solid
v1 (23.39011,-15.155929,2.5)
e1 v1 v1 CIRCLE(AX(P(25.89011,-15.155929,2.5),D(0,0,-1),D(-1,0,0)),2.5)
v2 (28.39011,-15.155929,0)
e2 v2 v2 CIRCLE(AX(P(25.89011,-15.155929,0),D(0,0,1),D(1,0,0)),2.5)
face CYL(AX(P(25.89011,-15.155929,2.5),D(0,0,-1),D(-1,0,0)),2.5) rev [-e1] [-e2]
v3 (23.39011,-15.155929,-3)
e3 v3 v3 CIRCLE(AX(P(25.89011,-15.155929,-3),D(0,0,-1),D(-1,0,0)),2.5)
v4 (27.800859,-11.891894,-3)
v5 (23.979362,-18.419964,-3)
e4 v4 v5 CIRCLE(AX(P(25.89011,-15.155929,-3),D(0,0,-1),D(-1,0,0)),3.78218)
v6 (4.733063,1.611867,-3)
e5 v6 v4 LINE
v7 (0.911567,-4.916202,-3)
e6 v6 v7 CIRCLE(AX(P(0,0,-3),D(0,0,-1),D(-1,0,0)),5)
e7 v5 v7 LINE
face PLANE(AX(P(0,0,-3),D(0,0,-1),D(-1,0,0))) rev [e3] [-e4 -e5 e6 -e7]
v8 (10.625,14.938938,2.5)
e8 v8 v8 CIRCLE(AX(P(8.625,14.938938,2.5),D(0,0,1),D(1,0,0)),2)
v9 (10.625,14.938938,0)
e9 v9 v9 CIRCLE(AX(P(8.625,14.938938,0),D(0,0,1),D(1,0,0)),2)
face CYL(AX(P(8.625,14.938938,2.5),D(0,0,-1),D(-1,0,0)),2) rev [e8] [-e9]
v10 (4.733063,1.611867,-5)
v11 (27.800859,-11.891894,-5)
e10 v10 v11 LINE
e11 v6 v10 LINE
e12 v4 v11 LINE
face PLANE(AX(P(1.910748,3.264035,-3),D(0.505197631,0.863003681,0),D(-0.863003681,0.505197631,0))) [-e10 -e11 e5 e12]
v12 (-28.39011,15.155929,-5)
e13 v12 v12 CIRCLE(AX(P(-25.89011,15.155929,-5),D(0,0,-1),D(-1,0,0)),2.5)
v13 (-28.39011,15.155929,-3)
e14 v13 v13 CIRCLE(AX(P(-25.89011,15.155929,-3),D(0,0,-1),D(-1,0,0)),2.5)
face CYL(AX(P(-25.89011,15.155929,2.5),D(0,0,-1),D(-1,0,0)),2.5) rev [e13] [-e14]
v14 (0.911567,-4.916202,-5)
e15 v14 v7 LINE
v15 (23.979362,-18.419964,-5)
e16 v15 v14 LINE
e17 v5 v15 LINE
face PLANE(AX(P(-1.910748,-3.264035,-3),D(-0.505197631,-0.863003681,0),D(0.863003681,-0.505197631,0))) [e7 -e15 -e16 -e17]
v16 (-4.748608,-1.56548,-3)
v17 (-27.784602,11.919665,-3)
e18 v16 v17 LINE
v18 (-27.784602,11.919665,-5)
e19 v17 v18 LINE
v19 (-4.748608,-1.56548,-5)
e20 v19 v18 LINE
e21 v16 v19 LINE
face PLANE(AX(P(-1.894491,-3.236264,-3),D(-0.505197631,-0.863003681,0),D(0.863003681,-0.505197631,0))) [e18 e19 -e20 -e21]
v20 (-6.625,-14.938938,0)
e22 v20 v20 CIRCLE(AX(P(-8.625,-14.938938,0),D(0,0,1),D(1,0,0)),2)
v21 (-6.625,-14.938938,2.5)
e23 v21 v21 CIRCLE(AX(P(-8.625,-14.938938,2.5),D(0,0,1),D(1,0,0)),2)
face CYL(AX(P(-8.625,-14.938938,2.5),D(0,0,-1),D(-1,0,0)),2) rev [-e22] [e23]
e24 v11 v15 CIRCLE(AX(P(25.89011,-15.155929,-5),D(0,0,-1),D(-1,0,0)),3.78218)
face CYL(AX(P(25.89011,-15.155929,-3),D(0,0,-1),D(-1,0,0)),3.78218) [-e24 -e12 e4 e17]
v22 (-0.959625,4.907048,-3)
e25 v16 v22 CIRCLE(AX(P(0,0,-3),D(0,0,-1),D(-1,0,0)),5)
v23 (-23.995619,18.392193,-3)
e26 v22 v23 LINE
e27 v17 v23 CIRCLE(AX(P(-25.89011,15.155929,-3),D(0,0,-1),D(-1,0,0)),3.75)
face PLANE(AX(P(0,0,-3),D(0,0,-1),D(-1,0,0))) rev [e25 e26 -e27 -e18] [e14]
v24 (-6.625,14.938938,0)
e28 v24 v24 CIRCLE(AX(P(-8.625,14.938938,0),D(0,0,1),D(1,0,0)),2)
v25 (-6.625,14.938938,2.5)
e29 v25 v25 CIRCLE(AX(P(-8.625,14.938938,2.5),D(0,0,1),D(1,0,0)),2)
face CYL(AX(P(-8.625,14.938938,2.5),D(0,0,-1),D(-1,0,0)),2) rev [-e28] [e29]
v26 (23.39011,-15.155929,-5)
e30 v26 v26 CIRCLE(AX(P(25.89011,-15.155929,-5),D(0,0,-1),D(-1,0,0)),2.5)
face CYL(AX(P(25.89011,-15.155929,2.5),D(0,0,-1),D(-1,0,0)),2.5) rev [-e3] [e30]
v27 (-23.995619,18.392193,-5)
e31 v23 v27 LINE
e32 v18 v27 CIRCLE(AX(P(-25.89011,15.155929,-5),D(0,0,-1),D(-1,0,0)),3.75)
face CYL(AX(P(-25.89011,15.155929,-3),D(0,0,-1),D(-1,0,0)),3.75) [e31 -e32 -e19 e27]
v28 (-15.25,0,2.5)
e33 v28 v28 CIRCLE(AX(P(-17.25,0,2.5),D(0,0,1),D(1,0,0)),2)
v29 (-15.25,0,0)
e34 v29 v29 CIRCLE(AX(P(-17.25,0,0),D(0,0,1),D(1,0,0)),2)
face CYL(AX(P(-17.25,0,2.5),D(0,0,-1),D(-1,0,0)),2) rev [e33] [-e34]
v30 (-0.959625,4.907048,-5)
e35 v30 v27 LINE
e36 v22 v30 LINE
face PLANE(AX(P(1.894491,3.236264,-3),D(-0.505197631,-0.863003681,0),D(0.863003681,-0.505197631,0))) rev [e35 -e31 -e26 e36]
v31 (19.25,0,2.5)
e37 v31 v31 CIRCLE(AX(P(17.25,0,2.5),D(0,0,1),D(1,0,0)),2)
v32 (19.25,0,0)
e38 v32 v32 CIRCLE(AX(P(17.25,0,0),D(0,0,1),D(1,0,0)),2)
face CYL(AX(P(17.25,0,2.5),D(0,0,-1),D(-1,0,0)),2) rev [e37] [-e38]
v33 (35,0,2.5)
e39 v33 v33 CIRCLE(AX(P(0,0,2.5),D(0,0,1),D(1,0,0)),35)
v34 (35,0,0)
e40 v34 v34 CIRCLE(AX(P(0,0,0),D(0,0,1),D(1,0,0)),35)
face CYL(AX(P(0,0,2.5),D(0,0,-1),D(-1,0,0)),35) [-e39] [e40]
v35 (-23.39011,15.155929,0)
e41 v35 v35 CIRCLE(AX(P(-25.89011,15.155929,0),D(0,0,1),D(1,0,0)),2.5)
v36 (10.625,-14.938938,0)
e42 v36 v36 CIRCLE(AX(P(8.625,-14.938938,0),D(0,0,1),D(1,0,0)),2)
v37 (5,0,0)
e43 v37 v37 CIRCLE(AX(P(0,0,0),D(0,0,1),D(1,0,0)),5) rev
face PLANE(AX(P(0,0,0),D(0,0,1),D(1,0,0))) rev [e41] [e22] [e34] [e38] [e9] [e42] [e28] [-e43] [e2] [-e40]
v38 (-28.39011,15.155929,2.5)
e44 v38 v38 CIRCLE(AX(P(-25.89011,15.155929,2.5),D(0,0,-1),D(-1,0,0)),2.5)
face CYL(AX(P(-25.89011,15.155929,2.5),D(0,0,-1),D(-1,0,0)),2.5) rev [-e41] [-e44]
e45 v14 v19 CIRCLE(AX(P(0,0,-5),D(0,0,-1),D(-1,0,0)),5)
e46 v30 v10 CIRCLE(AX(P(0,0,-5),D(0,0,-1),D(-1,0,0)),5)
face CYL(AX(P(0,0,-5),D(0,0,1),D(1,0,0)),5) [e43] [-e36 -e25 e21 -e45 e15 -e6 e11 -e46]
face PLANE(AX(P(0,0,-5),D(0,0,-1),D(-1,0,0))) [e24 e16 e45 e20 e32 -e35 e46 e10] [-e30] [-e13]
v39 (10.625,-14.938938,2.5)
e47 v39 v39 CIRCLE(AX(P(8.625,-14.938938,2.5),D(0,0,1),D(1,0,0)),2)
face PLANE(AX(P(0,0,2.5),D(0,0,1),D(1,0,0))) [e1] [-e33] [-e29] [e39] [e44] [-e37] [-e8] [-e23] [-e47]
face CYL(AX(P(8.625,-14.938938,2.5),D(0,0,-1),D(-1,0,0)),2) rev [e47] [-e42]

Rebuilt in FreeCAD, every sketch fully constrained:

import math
import FreeCAD as App
import Part
import Sketcher
Q = App.Units.Quantity

doc = App.newDocument("Part")
params = doc.addObject("Spreadsheet::Sheet", "Params")
for row, (alias, value) in enumerate([
    ("sketch1_diameter", "70 mm"),
    ("sketch1_diameter2", "4 mm"),
    ("pad1_length", "2.5 mm"),
    ("sketch2_diameter", "10 mm"),
    ("pad2_length", "5 mm"),
    ("sketch3_length", "30 mm"),
    ("pad3_length", "2 mm"),
    ("sketch4_radius", "5 mm"),
    ("sketch4_radius2", "3.75 mm"),
    ("pad4_length", "2 mm"),
    ("sketch5_diameter", "5 mm"),
], start=1):
    params.set(f"A{row}", alias)
    params.set(f"B{row}", "=" + value)
    params.setAlias(f"B{row}", alias)

body = doc.addObject("PartDesign::Body", "Body")

sketch1 = body.newObject("Sketcher::SketchObject", "Sketch")
sketch1.AttachmentSupport = (doc.getObject("XY_Plane"), [""])
sketch1.MapMode = "FlatFace"
sketch1.addGeometry(Part.Circle(App.Vector(0, 0, 0), App.Vector(0, 0, 1), 35), False)
sketch1.addGeometry(Part.Circle(App.Vector(-8.6, -14.9, 0), App.Vector(0, 0, 1), 2), False)
sketch1.addGeometry(Part.Circle(App.Vector(-17.2, 0, 0), App.Vector(0, 0, 1), 2), False)
sketch1.addGeometry(Part.Circle(App.Vector(8.6, -14.9, 0), App.Vector(0, 0, 1), 2), False)
sketch1.addGeometry(Part.Circle(App.Vector(17.2, 0, 0), App.Vector(0, 0, 1), 2), False)
sketch1.addGeometry(Part.Circle(App.Vector(-8.6, 14.9, 0), App.Vector(0, 0, 1), 2), False)
sketch1.addGeometry(Part.Circle(App.Vector(8.6, 14.9, 0), App.Vector(0, 0, 1), 2), False)
sketch1.addConstraint(Sketcher.Constraint("Coincident", 0, 3, -1, 1))
sketch1.addConstraint(Sketcher.Constraint("Equal", 1, 2))
sketch1.addConstraint(Sketcher.Constraint("Equal", 2, 3))
sketch1.addConstraint(Sketcher.Constraint("Equal", 3, 4))
sketch1.addConstraint(Sketcher.Constraint("Equal", 4, 5))
sketch1.addConstraint(Sketcher.Constraint("Equal", 5, 6))
sketch1.addConstraint(Sketcher.Constraint("Symmetric", 2, 3, 4, 3, -1, 1))
sketch1.addConstraint(Sketcher.Constraint("Symmetric", 3, 3, 5, 3, -1, 1))
sketch1.addConstraint(Sketcher.Constraint("Symmetric", 1, 3, 6, 3, -1, 1))
sketch1.addConstraint(Sketcher.Constraint("Symmetric", 1, 3, 3, 3, -2))
sketch1.addConstraint(Sketcher.Constraint("PointOnObject", 2, 3, -1))
sketch1.addConstraint(Sketcher.Constraint("Diameter", 0, Q("70 mm")))
sketch1.addConstraint(Sketcher.Constraint("Diameter", 1, Q("4 mm")))
sketch1.addConstraint(Sketcher.Constraint("DistanceX", 2, 3, 4, 3, Q("34.5 mm")))
sketch1.addConstraint(Sketcher.Constraint("DistanceX", 1, 3, 3, 3, Q("17.25 mm")))
sketch1.addConstraint(Sketcher.Constraint("DistanceY", 1, 3, -1, 1, Q("14.938938 mm")))
sketch1.setExpression("Constraints[11]", "Params.sketch1_diameter")
sketch1.setExpression("Constraints[12]", "Params.sketch1_diameter2")
pad1 = body.newObject("PartDesign::Pad", "Pad")
pad1.Profile = sketch1
pad1.setExpression("Length", "Params.pad1_length")

sketch2 = body.newObject("Sketcher::SketchObject", "Sketch001")
sketch2.AttachmentSupport = (doc.getObject("XY_Plane"), [""])
sketch2.MapMode = "FlatFace"
sketch2.addGeometry(Part.Circle(App.Vector(0, 0, 0), App.Vector(0, 0, 1), 5), False)
sketch2.addConstraint(Sketcher.Constraint("Coincident", 0, 3, -1, 1))
sketch2.addConstraint(Sketcher.Constraint("Diameter", 0, Q("10 mm")))
sketch2.setExpression("Constraints[1]", "Params.sketch2_diameter")
pad2 = body.newObject("PartDesign::Pad", "Pad001")
pad2.Profile = sketch2
pad2.setExpression("Length", "Params.pad2_length")
pad2.Reversed = True

sketch3 = body.newObject("Sketcher::SketchObject", "Sketch002")
sketch3.AttachmentSupport = (doc.getObject("XY_Plane"), [""])
sketch3.MapMode = "FlatFace"
sketch3.AttachmentOffset = App.Placement(App.Vector(0, 0, -5), App.Rotation())
sketch3.addGeometry(Part.LineSegment(App.Vector(24, -18.4, 0), App.Vector(-1.9, -3.3, 0)), False)
sketch3.addGeometry(Part.ArcOfCircle(Part.Circle(App.Vector(0, 0, 0), App.Vector(0, 0, 1), 3.8), math.radians(60), math.radians(240)), False)
sketch3.addGeometry(Part.LineSegment(App.Vector(1.9, 3.3, 0), App.Vector(27.8, -11.9, 0)), False)
sketch3.addGeometry(Part.ArcOfCircle(Part.Circle(App.Vector(25.9, -15.2, 0), App.Vector(0, 0, 1), 3.8), math.radians(-120), math.radians(60)), False)
sketch3.addConstraint(Sketcher.Constraint("Tangent", 0, 2, 1, 2))
sketch3.addConstraint(Sketcher.Constraint("Tangent", 1, 1, 2, 1))
sketch3.addConstraint(Sketcher.Constraint("Tangent", 2, 2, 3, 2))
sketch3.addConstraint(Sketcher.Constraint("Tangent", 3, 1, 0, 1))
sketch3.addConstraint(Sketcher.Constraint("Coincident", 1, 3, -1, 1))
sketch3.addConstraint(Sketcher.Constraint("Equal", 1, 3))
sketch3.addConstraint(Sketcher.Constraint("Distance", 0, Q("30 mm")))
sketch3.addConstraint(Sketcher.Constraint("Radius", 1, Q("3.78218 mm")))
sketch3.addConstraint(Sketcher.Constraint("DistanceY", 3, 1, 1, 1, Q("21.683999 mm")))
sketch3.setExpression("Constraints[6]", "Params.sketch3_length")
pad3 = body.newObject("PartDesign::Pad", "Pad002")
pad3.Profile = sketch3
pad3.setExpression("Length", "Params.pad3_length")

sketch4 = body.newObject("Sketcher::SketchObject", "Sketch003")
sketch4.AttachmentSupport = (doc.getObject("XY_Plane"), [""])
sketch4.MapMode = "FlatFace"
sketch4.AttachmentOffset = App.Placement(App.Vector(0, 0, -3), App.Rotation())
sketch4.addGeometry(Part.LineSegment(App.Vector(-24, 18.4, 0), App.Vector(-1, 4.9, 0)), False)
sketch4.addGeometry(Part.ArcOfCircle(Part.Circle(App.Vector(0, 0, 0), App.Vector(0, 0, 1), 5), math.radians(101), math.radians(198)), False)
sketch4.addGeometry(Part.LineSegment(App.Vector(-4.7, -1.6, 0), App.Vector(-27.8, 11.9, 0)), False)
sketch4.addGeometry(Part.ArcOfCircle(Part.Circle(App.Vector(-25.9, 15.2, 0), App.Vector(0, 0, 1), 3.8), math.radians(60), math.radians(240)), False)
sketch4.addConstraint(Sketcher.Constraint("Coincident", 0, 2, 1, 1))
sketch4.addConstraint(Sketcher.Constraint("Coincident", 1, 2, 2, 1))
sketch4.addConstraint(Sketcher.Constraint("Tangent", 2, 2, 3, 2))
sketch4.addConstraint(Sketcher.Constraint("Tangent", 3, 1, 0, 1))
sketch4.addConstraint(Sketcher.Constraint("Coincident", 1, 3, -1, 1))
sketch4.addConstraint(Sketcher.Constraint("Parallel", 0, 2))
sketch4.addConstraint(Sketcher.Constraint("Equal", 0, 2))
sketch4.addConstraint(Sketcher.Constraint("Radius", 1, Q("5 mm")))
sketch4.addConstraint(Sketcher.Constraint("Radius", 3, Q("3.75 mm")))
sketch4.addConstraint(Sketcher.Constraint("DistanceX", 2, 2, -1, 1, Q("27.784602 mm")))
sketch4.addConstraint(Sketcher.Constraint("Distance", 0, Q("26.692811 mm")))
sketch4.setExpression("Constraints[7]", "Params.sketch4_radius")
sketch4.setExpression("Constraints[8]", "Params.sketch4_radius2")
pad4 = body.newObject("PartDesign::Pad", "Pad003")
pad4.Profile = sketch4
pad4.setExpression("Length", "Params.pad4_length")
pad4.Reversed = True

sketch5 = body.newObject("Sketcher::SketchObject", "Sketch004")
sketch5.AttachmentSupport = (doc.getObject("XY_Plane"), [""])
sketch5.MapMode = "FlatFace"
sketch5.AttachmentOffset = App.Placement(App.Vector(0, 0, -5), App.Rotation())
sketch5.addGeometry(Part.Circle(App.Vector(25.9, -15.2, 0), App.Vector(0, 0, 1), 2.5), False)
sketch5.addGeometry(Part.Circle(App.Vector(-25.9, 15.2, 0), App.Vector(0, 0, 1), 2.5), False)
sketch5.addConstraint(Sketcher.Constraint("Equal", 0, 1))
sketch5.addConstraint(Sketcher.Constraint("Symmetric", 0, 3, 1, 3, -1, 1))
sketch5.addConstraint(Sketcher.Constraint("Diameter", 0, Q("5 mm")))
sketch5.addConstraint(Sketcher.Constraint("DistanceX", -1, 1, 0, 3, Q("25.89011 mm")))
sketch5.addConstraint(Sketcher.Constraint("DistanceY", 0, 3, -1, 1, Q("15.155929 mm")))
sketch5.setExpression("Constraints[2]", "Params.sketch5_diameter")
pocket1 = body.newObject("PartDesign::Pocket", "Pocket")
pocket1.Profile = sketch5
pocket1.Type = "ThroughAll"
pocket1.Reversed = True

doc.recompute()
